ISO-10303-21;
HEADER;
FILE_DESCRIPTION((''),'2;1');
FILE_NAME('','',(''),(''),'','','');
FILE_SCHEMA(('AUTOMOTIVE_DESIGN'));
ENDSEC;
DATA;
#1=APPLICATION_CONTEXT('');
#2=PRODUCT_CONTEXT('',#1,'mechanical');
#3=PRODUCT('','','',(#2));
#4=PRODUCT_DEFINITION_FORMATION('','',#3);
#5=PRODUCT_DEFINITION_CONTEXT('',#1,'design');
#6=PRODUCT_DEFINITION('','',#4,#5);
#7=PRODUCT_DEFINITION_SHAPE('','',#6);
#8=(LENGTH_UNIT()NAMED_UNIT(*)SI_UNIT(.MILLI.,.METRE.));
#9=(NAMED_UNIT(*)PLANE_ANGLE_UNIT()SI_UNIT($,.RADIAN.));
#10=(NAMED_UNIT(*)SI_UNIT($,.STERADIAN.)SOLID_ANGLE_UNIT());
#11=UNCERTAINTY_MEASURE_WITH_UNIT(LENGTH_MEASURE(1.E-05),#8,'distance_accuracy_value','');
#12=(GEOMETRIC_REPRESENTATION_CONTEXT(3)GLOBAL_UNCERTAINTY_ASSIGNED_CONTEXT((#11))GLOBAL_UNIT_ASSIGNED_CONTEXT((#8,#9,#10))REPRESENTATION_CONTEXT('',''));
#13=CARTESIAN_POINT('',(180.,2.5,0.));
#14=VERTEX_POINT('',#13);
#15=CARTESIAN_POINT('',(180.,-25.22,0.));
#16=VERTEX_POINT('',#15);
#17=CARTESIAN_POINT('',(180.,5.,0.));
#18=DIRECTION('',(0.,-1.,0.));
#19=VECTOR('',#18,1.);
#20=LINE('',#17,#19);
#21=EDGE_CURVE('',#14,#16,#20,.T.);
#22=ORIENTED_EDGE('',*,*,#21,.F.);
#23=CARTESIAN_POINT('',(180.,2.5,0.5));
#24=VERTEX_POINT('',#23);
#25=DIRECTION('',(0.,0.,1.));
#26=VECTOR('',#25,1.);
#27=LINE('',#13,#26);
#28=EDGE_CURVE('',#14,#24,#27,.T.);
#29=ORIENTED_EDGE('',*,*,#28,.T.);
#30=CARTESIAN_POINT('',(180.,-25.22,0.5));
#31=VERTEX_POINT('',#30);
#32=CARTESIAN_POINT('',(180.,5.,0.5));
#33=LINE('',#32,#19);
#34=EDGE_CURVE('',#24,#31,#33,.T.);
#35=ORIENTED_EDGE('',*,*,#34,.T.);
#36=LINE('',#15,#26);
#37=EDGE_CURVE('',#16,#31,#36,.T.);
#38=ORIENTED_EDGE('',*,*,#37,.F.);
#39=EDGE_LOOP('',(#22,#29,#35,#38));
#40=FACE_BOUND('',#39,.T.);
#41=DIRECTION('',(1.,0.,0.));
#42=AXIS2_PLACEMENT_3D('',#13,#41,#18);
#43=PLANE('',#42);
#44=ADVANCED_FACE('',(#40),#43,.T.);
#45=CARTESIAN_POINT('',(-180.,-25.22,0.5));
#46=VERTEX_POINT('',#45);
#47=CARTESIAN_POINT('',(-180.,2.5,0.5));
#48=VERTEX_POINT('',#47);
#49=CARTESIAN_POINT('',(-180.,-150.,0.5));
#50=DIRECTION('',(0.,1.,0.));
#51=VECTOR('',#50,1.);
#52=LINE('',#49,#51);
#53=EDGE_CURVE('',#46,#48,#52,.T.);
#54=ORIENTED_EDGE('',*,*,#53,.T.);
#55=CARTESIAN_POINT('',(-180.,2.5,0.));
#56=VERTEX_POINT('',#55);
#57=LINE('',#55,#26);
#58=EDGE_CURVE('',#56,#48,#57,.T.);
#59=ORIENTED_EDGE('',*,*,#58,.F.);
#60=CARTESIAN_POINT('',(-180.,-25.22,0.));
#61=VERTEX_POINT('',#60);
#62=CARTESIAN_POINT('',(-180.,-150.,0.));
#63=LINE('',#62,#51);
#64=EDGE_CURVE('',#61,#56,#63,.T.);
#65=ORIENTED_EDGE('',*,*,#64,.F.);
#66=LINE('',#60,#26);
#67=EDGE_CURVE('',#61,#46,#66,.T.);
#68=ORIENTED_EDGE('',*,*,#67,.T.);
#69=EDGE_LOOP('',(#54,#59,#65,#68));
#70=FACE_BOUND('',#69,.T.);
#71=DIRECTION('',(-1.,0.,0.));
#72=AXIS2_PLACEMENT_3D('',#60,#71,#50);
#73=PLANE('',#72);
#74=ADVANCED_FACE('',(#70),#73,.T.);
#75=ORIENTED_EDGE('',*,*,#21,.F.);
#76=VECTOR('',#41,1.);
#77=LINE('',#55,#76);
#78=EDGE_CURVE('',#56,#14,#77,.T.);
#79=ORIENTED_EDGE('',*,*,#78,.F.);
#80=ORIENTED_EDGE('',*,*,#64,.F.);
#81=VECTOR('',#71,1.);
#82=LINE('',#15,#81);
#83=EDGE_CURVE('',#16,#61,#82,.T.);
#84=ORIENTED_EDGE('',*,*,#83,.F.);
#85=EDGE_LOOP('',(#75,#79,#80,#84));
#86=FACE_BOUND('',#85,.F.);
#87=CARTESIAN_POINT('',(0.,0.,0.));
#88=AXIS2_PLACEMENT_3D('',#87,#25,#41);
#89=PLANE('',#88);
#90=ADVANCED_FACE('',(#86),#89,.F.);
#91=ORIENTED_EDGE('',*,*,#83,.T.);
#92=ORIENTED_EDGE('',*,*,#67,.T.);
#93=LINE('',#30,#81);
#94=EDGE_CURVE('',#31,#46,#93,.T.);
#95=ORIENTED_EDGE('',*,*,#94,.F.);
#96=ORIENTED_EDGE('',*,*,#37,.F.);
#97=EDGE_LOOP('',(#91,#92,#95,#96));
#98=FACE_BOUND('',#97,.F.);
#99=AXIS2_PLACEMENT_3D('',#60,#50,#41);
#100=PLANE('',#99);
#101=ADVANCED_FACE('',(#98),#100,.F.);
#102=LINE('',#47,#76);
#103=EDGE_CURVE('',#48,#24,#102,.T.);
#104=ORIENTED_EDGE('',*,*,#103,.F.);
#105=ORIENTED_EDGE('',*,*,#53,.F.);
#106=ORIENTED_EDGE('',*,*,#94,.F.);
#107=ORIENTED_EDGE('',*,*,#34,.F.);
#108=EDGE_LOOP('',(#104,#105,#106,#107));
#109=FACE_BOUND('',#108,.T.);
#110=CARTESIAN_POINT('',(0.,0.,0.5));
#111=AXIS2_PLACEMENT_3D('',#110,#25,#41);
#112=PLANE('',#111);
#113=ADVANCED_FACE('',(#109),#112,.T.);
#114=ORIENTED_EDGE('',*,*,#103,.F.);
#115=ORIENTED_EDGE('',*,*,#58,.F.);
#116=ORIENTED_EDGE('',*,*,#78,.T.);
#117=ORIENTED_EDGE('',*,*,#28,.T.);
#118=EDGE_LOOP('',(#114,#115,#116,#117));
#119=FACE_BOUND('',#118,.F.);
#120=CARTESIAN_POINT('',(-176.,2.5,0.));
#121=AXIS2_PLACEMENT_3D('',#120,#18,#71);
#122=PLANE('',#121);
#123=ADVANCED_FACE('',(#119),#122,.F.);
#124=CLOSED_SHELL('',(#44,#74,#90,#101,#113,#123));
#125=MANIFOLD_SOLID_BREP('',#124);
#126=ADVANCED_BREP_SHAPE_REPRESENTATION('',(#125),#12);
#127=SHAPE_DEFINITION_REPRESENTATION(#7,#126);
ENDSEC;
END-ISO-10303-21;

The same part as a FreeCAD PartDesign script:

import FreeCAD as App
import Part
import Sketcher
from FreeCAD import Vector


def add_polygon(sketch, points):
    """Adds a closed chain of lines whose ends are joined by coincident constraints."""
    first, n = sketch.GeometryCount, len(points)
    for a, b in zip(points, points[1:] + points[:1]):
        sketch.addGeometry(Part.LineSegment(App.Vector(*a, 0), App.Vector(*b, 0)), False)
    for i in range(n):
        sketch.addConstraint(Sketcher.Constraint("Coincident", first + i, 2, first + (i + 1) % n, 1))

doc = App.newDocument("Part")
params = doc.addObject("Spreadsheet::Sheet", "Params")
for row, (alias, value) in enumerate([
    ("sketch1_width", "360 mm"),
    ("sketch1_height", "27.72 mm"),
    ("pad1_length", "0.5 mm"),
], start=1):
    params.set(f"A{row}", alias)
    params.set(f"B{row}", "=" + value)
    params.setAlias(f"B{row}", alias)

body = doc.addObject("PartDesign::Body", "Body")

sketch1 = doc.addObject("Sketcher::SketchObject", "Sketch")
body.addObject(sketch1)
sketch1.AttachmentSupport = (doc.XY_Plane, [""])
sketch1.MapMode = "FlatFace"
add_polygon(sketch1, [(-180, -25), (180, -25), (180, 2), (-180, 2)])
sketch1.addConstraint([
    Sketcher.Constraint("Horizontal", 0),
    Sketcher.Constraint("Vertical", 1),
    Sketcher.Constraint("Horizontal", 2),
    Sketcher.Constraint("Vertical", 3),
    Sketcher.Constraint("DistanceX", 0, 1, 0, 2, 360.0),
    Sketcher.Constraint("DistanceX", -1, 1, 0, 2, 180.0),
    Sketcher.Constraint("DistanceY", 1, 1, 1, 2, 27.72),
    Sketcher.Constraint("DistanceY", -1, 1, 1, 2, 2.5),
])
sketch1.setExpression("Constraints[8]", "Params.sketch1_width")
sketch1.setExpression("Constraints[10]", "Params.sketch1_height")
pad1 = doc.addObject("PartDesign::Pad", "Pad")
body.addObject(pad1)
pad1.Profile = sketch1
pad1.setExpression("Length", "Params.pad1_length")

doc.recompute()
